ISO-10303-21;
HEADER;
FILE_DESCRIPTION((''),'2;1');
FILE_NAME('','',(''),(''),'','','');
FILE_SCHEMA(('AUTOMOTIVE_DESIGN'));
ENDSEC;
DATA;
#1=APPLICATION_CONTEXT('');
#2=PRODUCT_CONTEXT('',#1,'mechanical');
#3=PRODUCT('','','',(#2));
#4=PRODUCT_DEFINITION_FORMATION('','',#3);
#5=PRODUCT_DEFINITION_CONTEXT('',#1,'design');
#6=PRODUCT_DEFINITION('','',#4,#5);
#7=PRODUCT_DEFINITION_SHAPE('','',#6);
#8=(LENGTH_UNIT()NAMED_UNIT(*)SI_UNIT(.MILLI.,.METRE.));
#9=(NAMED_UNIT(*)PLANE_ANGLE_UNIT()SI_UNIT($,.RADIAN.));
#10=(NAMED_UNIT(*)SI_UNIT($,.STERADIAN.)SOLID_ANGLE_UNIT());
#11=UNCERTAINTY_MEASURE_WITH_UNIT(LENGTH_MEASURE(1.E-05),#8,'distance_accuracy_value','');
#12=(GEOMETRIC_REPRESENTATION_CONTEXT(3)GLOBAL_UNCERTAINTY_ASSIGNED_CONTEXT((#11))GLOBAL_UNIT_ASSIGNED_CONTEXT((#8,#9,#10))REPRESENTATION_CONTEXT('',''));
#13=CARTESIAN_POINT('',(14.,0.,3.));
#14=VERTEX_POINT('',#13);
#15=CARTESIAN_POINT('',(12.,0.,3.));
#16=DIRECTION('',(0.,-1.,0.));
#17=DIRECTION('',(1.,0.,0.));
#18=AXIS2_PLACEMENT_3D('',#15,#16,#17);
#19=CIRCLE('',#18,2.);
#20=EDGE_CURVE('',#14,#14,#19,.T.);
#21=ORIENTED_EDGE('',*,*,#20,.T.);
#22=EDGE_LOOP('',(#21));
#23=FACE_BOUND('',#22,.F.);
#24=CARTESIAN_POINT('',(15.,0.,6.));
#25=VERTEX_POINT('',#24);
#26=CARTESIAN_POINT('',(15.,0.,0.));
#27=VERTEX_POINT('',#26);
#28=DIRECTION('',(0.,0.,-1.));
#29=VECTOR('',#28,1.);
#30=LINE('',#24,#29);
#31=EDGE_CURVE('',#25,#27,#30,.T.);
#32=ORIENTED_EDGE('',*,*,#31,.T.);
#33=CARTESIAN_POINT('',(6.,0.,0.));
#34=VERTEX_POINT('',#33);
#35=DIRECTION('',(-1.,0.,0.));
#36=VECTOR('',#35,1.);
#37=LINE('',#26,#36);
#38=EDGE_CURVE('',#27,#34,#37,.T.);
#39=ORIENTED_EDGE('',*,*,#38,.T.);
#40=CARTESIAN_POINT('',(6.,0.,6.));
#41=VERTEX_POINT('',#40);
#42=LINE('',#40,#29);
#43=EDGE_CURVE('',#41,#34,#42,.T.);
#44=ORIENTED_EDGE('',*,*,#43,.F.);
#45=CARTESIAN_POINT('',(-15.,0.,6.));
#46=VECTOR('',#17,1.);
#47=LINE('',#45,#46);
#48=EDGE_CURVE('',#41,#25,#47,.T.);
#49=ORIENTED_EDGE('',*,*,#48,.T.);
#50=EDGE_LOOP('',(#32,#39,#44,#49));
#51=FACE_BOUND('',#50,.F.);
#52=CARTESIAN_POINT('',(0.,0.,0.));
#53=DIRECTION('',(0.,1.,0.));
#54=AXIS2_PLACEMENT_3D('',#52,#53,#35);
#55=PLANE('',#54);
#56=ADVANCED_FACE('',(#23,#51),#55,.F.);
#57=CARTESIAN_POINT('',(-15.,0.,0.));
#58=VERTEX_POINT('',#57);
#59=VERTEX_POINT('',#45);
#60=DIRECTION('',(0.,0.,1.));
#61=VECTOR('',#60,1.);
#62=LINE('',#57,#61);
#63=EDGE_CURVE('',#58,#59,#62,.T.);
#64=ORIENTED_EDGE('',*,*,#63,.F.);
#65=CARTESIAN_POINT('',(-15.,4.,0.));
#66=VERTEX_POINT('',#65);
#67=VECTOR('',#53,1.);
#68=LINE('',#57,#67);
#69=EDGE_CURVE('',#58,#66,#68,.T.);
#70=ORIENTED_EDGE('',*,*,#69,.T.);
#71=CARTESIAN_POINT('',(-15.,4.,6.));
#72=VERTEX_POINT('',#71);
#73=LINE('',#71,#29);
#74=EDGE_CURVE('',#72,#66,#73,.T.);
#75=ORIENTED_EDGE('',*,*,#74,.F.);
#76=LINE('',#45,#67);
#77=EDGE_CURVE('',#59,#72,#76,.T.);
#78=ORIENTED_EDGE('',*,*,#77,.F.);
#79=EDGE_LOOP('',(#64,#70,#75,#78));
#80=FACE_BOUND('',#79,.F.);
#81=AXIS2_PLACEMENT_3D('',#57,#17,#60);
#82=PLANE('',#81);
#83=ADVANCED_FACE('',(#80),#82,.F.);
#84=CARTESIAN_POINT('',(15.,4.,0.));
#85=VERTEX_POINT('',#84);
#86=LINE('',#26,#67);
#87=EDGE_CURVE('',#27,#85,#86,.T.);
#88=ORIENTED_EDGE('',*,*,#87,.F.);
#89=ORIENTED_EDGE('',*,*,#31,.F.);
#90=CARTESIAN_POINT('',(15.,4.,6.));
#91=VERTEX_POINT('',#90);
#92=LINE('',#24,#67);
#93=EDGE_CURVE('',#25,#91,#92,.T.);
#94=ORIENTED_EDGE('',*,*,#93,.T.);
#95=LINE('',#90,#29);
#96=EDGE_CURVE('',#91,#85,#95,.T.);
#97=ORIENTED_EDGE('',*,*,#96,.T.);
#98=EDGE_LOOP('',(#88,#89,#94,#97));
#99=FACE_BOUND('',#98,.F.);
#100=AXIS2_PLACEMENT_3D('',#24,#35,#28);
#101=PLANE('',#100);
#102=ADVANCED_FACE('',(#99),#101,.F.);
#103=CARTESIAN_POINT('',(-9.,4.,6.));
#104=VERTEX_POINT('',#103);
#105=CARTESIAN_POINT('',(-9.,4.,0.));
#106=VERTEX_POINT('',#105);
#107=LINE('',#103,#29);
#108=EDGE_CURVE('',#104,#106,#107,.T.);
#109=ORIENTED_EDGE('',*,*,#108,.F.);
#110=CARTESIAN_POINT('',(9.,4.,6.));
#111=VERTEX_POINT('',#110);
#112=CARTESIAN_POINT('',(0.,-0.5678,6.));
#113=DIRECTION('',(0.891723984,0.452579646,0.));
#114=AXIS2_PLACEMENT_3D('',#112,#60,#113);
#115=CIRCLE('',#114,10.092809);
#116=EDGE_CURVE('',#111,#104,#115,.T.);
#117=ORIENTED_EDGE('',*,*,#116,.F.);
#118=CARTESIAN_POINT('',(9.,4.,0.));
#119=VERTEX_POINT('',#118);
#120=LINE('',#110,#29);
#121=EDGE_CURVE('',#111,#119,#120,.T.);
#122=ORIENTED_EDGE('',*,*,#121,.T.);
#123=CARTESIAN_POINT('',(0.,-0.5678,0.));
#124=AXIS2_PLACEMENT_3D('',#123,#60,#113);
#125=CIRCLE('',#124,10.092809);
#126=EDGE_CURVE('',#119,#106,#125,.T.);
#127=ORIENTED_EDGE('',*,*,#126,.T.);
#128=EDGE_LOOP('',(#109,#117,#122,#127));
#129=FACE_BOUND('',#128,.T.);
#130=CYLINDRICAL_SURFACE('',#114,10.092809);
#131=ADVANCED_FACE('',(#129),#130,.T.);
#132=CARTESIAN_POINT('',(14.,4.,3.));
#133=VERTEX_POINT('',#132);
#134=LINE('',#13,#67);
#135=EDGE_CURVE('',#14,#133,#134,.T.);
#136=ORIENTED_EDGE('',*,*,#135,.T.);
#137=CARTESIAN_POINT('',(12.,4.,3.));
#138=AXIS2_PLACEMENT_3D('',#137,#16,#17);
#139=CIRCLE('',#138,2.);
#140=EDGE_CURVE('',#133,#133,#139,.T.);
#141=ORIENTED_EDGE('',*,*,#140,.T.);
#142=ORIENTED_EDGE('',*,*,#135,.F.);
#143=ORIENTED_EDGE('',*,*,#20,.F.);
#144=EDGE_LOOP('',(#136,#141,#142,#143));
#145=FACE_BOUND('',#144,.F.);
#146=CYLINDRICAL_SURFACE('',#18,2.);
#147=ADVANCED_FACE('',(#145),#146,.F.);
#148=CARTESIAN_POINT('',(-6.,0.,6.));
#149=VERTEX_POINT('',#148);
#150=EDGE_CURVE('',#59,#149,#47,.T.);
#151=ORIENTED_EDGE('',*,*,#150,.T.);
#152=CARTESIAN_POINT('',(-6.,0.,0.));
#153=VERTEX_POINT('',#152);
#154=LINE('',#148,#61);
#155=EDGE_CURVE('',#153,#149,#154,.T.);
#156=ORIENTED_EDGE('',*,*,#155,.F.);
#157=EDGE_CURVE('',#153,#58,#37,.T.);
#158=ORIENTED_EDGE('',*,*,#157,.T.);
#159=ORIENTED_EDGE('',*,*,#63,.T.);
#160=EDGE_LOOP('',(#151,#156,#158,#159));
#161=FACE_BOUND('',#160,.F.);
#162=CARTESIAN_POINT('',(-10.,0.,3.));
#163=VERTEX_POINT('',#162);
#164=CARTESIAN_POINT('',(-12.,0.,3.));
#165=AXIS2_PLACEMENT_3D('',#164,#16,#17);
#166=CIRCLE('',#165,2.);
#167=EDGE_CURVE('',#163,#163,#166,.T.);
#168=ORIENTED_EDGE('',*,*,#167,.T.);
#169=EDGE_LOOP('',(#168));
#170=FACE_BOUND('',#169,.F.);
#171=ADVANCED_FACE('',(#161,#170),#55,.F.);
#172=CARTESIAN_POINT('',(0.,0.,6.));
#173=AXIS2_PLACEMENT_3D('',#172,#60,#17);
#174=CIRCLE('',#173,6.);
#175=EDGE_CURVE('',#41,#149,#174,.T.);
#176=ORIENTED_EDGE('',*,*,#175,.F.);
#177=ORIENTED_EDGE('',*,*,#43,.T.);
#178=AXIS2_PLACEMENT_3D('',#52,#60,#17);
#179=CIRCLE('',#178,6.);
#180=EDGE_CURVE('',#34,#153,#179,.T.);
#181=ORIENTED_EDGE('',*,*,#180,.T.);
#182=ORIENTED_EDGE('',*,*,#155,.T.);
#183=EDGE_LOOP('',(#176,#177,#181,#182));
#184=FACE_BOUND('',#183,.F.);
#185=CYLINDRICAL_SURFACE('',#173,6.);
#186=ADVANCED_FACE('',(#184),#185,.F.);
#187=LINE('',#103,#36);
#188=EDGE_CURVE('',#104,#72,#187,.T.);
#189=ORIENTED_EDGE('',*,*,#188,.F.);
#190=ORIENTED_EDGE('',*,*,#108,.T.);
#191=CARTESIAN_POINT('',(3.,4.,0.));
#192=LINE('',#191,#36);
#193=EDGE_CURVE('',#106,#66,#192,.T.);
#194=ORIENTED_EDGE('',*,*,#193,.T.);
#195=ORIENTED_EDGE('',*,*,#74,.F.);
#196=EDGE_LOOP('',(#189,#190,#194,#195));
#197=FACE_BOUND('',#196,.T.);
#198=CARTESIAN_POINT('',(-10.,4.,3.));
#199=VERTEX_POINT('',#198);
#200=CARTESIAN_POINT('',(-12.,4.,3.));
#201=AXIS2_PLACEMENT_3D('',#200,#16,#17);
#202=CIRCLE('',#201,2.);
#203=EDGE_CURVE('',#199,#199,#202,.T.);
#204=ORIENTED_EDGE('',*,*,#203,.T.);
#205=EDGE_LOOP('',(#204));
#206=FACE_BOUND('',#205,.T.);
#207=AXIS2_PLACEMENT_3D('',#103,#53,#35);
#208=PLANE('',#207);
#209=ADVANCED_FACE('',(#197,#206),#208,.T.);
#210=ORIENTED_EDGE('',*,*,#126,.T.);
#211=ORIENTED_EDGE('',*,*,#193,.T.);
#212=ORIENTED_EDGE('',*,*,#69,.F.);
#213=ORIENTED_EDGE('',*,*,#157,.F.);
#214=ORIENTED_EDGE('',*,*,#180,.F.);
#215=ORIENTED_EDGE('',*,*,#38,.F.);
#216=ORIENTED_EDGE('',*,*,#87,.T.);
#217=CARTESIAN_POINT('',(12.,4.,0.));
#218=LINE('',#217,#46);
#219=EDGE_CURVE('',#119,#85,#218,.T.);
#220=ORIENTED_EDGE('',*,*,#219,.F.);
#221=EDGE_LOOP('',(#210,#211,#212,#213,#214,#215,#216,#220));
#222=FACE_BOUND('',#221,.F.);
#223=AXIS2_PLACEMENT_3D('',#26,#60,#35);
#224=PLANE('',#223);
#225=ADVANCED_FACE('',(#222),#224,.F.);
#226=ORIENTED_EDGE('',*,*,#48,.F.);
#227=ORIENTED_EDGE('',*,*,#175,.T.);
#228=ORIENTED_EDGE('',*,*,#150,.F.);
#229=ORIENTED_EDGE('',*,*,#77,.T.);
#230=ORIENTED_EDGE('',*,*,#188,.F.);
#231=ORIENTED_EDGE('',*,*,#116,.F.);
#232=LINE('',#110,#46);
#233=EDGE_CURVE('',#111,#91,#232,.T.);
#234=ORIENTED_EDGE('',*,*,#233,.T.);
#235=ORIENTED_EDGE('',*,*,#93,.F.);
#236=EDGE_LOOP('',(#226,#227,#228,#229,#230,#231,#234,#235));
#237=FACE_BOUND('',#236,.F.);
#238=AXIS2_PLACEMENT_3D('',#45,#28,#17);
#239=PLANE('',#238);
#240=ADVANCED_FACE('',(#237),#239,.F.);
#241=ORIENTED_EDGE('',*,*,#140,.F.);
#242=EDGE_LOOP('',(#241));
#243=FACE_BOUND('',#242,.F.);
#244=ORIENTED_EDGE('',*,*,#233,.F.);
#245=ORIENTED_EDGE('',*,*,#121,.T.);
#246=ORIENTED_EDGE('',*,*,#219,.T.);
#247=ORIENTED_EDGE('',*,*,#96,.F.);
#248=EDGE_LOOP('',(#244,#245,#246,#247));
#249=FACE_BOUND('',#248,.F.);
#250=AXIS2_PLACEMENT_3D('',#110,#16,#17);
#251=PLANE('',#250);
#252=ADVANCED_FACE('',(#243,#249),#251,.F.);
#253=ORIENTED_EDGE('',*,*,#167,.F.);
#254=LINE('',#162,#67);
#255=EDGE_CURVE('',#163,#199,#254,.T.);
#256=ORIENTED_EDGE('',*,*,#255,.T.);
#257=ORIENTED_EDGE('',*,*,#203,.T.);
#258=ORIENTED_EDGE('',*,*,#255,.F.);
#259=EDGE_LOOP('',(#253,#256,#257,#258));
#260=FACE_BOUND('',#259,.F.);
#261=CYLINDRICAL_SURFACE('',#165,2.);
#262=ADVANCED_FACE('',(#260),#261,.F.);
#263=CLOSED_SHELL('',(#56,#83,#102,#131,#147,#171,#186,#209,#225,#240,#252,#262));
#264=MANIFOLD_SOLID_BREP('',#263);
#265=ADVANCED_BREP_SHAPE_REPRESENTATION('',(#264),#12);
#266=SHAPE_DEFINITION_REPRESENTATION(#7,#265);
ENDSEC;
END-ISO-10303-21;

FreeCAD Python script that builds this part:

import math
import FreeCAD as App
import Part
import Sketcher

V = App.Vector
Q = App.Units.Quantity

doc = App.newDocument("Part")
body = doc.addObject("PartDesign::Body", "Body")

sketch1 = body.newObject("Sketcher::SketchObject", "Sketch")
sketch1.AttachmentSupport = (doc.getObject("XZ_Plane"), [""])
sketch1.MapMode = "FlatFace"
sketch1.addGeometry([
    Part.LineSegment(V(-15, 0, 0), V(-15, 6, 0)),
    Part.LineSegment(V(-15, 6, 0), V(15, 6, 0)),
    Part.LineSegment(V(15, 6, 0), V(15, 0, 0)),
    Part.LineSegment(V(15, 0, 0), V(-15, 0, 0)),
], False)
sketch1.addConstraint([
    Sketcher.Constraint("Coincident", 0, 2, 1, 1),
    Sketcher.Constraint("Coincident", 1, 2, 2, 1),
    Sketcher.Constraint("Coincident", 2, 2, 3, 1),
    Sketcher.Constraint("Coincident", 3, 2, 0, 1),
    Sketcher.Constraint("Vertical", 0),
    Sketcher.Constraint("Horizontal", 1),
    Sketcher.Constraint("Vertical", 2),
    Sketcher.Constraint("Horizontal", 3),
    Sketcher.Constraint("Symmetric", 2, 2, 3, 2, -1, 1),
    Sketcher.Constraint("DistanceX", 1, 1, 1, 2, Q("30 mm")),
    Sketcher.Constraint("DistanceY", 0, 1, 0, 2, Q("6 mm")),
])
pad1 = body.newObject("PartDesign::Pad", "Pad")
pad1.Profile = sketch1
pad1.Length = 10
pad1.Reversed = True

sketch2 = body.newObject("Sketcher::SketchObject", "Sketch001")
sketch2.AttachmentSupport = (doc.getObject("XY_Plane"), [""])
sketch2.MapMode = "FlatFace"
sketch2.AttachmentOffset = App.Placement(V(0, 0, 6), App.Rotation())
sketch2.addGeometry([
    Part.Circle(V(0, 0, 0), V(0, 0, 1), 6),
    Part.LineSegment(V(15, 4, 0), V(15, 10, 0)),
    Part.LineSegment(V(15, 10, 0), V(-15, 10, 0)),
    Part.LineSegment(V(-15, 10, 0), V(-15, 4, 0)),
    Part.LineSegment(V(-15, 4, 0), V(-9, 4, 0)),
    Part.ArcOfCircle(Part.Circle(V(0, -1, 0), V(0, 0, 1), 10), math.radians(27), math.radians(153)),
    Part.LineSegment(V(9, 4, 0), V(15, 4, 0)),
], False)
sketch2.addConstraint([
    Sketcher.Constraint("Coincident", 1, 2, 2, 1),
    Sketcher.Constraint("Coincident", 2, 2, 3, 1),
    Sketcher.Constraint("Coincident", 3, 2, 4, 1),
    Sketcher.Constraint("Coincident", 4, 2, 5, 2),
    Sketcher.Constraint("Coincident", 5, 1, 6, 1),
    Sketcher.Constraint("Coincident", 6, 2, 1, 1),
    Sketcher.Constraint("Vertical", 1),
    Sketcher.Constraint("Horizontal", 2),
    Sketcher.Constraint("Vertical", 3),
    Sketcher.Constraint("Horizontal", 4),
    Sketcher.Constraint("Horizontal", 6),
    Sketcher.Constraint("Coincident", 0, 3, -1, 1),
    Sketcher.Constraint("Symmetric", 4, 2, 5, 1, -2),
    Sketcher.Constraint("Equal", 4, 6),
    Sketcher.Constraint("Equal", 6, 1),
    Sketcher.Constraint("Diameter", 0, Q("12 mm")),
    Sketcher.Constraint("DistanceX", 4, 1, 4, 2, Q("6 mm")),
    Sketcher.Constraint("DistanceX", 2, 2, 2, 1, Q("30 mm")),
    Sketcher.Constraint("DistanceY", -1, 1, 1, 2, Q("10 mm")),
    Sketcher.Constraint("Radius", 5, Q("10.0928 mm")),
])
pocket1 = body.newObject("PartDesign::Pocket", "Pocket")
pocket1.Profile = sketch2
pocket1.Length = 10

sketch3 = body.newObject("Sketcher::SketchObject", "Sketch002")
sketch3.AttachmentSupport = (doc.getObject("XZ_Plane"), [""])
sketch3.MapMode = "FlatFace"
sketch3.addGeometry([
    Part.Circle(V(-12, 3, 0), V(0, 0, 1), 2),
    Part.Circle(V(12, 3, 0), V(0, 0, 1), 2),
], False)
sketch3.addConstraint([
    Sketcher.Constraint("Equal", 0, 1),
    Sketcher.Constraint("Symmetric", 0, 3, 1, 3, -2),
    Sketcher.Constraint("Diameter", 0, Q("4 mm")),
    Sketcher.Constraint("DistanceX", 0, 3, -1, 1, Q("12 mm")),
    Sketcher.Constraint("DistanceY", -1, 1, 0, 3, Q("3 mm")),
])
pocket2 = body.newObject("PartDesign::Pocket", "Pocket001")
pocket2.Profile = sketch3
pocket2.Length = 10

doc.recompute()
